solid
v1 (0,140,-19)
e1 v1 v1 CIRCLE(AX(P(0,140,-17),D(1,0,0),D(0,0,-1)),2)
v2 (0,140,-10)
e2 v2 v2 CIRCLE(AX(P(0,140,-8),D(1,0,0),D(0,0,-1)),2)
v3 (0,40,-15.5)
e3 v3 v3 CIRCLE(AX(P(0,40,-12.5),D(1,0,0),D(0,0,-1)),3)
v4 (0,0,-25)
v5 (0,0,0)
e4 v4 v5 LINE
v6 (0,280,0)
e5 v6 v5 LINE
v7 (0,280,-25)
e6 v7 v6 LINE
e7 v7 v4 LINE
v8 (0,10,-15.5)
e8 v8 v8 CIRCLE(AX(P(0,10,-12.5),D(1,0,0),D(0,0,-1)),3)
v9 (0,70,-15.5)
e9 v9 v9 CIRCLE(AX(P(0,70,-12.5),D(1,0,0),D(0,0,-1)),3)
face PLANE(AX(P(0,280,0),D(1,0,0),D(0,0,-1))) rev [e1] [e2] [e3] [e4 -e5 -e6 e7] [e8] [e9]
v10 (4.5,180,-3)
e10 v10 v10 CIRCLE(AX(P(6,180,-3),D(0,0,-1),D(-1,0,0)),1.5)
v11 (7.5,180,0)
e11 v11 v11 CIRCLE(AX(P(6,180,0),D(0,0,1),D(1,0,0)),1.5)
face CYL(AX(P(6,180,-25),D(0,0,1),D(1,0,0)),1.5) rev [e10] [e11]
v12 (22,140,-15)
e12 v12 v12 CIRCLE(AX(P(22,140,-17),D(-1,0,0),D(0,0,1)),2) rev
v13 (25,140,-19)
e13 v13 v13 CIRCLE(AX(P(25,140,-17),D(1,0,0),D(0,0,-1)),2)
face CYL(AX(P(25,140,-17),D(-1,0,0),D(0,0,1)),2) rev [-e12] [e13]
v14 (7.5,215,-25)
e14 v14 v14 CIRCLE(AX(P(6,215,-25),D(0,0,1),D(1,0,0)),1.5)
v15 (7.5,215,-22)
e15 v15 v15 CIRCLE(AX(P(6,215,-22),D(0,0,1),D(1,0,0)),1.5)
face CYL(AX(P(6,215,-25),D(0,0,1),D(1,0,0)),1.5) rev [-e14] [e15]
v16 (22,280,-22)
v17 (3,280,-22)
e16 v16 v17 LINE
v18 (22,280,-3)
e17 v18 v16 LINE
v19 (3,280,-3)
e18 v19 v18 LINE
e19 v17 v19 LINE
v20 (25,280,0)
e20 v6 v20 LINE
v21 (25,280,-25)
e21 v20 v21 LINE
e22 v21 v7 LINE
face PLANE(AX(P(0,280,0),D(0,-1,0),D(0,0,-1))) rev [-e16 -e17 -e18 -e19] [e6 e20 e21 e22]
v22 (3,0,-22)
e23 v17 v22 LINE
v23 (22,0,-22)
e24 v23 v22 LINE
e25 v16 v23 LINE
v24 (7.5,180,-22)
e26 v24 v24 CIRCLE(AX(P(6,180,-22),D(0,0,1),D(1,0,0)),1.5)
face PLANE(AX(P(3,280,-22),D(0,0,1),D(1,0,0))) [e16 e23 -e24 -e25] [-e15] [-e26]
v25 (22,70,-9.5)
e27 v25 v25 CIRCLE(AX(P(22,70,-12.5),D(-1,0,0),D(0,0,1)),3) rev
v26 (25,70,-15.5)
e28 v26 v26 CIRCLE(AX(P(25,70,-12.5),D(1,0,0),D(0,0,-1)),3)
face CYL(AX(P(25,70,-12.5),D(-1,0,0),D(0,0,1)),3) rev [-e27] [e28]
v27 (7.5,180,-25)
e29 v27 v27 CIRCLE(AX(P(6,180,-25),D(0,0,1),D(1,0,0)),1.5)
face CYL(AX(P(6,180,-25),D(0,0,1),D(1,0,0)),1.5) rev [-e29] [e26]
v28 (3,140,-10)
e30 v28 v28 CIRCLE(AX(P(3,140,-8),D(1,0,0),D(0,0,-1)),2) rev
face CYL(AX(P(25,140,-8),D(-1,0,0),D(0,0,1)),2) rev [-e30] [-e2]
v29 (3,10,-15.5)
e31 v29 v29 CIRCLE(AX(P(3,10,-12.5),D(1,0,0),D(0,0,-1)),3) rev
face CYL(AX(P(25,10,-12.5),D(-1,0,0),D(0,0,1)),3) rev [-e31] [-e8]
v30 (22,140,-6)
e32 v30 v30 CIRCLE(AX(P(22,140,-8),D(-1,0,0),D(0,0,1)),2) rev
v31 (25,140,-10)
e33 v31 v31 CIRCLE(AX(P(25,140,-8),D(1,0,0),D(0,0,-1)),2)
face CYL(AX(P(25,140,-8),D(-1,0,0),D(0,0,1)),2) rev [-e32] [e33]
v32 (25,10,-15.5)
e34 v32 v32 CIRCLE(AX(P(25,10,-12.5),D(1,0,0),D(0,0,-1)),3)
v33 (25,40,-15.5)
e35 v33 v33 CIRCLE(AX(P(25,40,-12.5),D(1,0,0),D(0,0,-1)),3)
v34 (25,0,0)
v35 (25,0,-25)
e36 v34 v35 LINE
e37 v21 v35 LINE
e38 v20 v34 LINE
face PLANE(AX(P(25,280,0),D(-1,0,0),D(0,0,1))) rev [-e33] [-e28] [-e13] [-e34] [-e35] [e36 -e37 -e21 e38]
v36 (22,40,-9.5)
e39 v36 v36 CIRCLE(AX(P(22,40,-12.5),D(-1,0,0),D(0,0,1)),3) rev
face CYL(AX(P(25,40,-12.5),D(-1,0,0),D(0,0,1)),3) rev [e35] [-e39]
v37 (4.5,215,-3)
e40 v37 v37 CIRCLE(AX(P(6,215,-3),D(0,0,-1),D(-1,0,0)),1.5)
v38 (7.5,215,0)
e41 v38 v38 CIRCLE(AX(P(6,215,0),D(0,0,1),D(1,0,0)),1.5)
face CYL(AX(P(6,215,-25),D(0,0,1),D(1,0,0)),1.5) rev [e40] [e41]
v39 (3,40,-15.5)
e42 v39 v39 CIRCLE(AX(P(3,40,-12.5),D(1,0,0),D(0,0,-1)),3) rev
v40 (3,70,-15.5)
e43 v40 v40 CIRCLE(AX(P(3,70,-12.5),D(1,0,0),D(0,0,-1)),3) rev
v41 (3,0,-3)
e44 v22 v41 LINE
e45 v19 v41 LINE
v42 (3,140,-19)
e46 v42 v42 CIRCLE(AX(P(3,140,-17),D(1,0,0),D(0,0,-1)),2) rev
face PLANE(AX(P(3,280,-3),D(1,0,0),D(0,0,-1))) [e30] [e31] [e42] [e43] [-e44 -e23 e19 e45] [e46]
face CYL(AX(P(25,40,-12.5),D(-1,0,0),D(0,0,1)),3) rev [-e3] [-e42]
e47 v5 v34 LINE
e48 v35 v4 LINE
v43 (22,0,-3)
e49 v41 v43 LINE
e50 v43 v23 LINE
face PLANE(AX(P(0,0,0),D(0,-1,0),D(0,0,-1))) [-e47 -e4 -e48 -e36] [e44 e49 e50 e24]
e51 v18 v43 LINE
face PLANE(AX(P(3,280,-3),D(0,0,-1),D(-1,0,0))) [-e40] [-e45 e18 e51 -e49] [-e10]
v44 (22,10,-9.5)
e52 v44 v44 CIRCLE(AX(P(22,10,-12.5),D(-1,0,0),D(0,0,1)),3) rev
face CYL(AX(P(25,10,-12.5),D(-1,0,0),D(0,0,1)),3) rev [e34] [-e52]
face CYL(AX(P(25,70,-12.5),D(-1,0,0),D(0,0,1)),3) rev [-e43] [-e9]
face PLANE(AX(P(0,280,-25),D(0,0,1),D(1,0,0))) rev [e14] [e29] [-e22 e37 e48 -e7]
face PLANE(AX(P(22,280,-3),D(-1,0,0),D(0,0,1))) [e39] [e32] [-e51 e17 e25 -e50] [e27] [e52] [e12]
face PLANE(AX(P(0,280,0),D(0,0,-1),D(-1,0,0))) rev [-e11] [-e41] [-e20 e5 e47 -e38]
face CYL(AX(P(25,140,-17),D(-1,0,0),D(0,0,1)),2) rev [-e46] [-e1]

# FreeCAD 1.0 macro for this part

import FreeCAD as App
import Part
import Sketcher
Q = App.Units.Quantity


def add_polygon(sketch, points):
    """Adds a closed chain of lines whose ends are joined by coincident constraints."""
    first, n = sketch.GeometryCount, len(points)
    for a, b in zip(points, points[1:] + points[:1]):
        sketch.addGeometry(Part.LineSegment(App.Vector(*a, 0), App.Vector(*b, 0)), False)
    for i in range(n):
        sketch.addConstraint(Sketcher.Constraint("Coincident", first + i, 2, first + (i + 1) % n, 1))

doc = App.newDocument("Part")
params = doc.addObject("Spreadsheet::Sheet", "Params")
for row, (alias, value) in enumerate([
    ("sketch1_width", "25 mm"),
    ("sketch1_width2", "19 mm"),
    ("pad1_length", "280 mm"),
    ("sketch2_diameter", "6 mm"),
    ("sketch2_diameter2", "4 mm"),
    ("sketch3_diameter", "3 mm"),
], start=1):
    params.set(f"A{row}", alias)
    params.set(f"B{row}", "=" + value)
    params.setAlias(f"B{row}", alias)

body = doc.addObject("PartDesign::Body", "Body")

sketch1 = doc.addObject("Sketcher::SketchObject", "Sketch")
body.addObject(sketch1)
sketch1.AttachmentSupport = (doc.XZ_Plane, [""])
sketch1.MapMode = "FlatFace"
add_polygon(sketch1, [(0, -25), (0, 0), (25, 0), (25, -25)])
add_polygon(sketch1, [(22, -3), (3, -3), (3, -22), (22, -22)])
sketch1.addConstraint(Sketcher.Constraint("Vertical", 0))
sketch1.addConstraint(Sketcher.Constraint("Horizontal", 1))
sketch1.addConstraint(Sketcher.Constraint("Vertical", 2))
sketch1.addConstraint(Sketcher.Constraint("Horizontal", 3))
sketch1.addConstraint(Sketcher.Constraint("Horizontal", 4))
sketch1.addConstraint(Sketcher.Constraint("Vertical", 5))
sketch1.addConstraint(Sketcher.Constraint("Horizontal", 6))
sketch1.addConstraint(Sketcher.Constraint("Vertical", 7))
sketch1.addConstraint(Sketcher.Constraint("Coincident", 0, 2, -1, 1))
sketch1.addConstraint(Sketcher.Constraint("Equal", 3, 0))
sketch1.addConstraint(Sketcher.Constraint("Equal", 6, 5))
sketch1.addConstraint(Sketcher.Constraint("DistanceX", 1, 1, 1, 2, Q("25 mm")))
sketch1.addConstraint(Sketcher.Constraint("DistanceX", 4, 2, 4, 1, Q("19 mm")))
sketch1.addConstraint(Sketcher.Constraint("DistanceX", -1, 1, 4, 2, Q("3 mm")))
sketch1.addConstraint(Sketcher.Constraint("DistanceY", 4, 2, -1, 1, Q("3 mm")))
sketch1.setExpression("Constraints[19]", "Params.sketch1_width")
sketch1.setExpression("Constraints[20]", "Params.sketch1_width2")
pad1 = doc.addObject("PartDesign::Pad", "Pad")
body.addObject(pad1)
pad1.Profile = sketch1
pad1.setExpression("Length", "Params.pad1_length")
pad1.Reversed = True

sketch2 = doc.addObject("Sketcher::SketchObject", "Sketch001")
body.addObject(sketch2)
sketch2.AttachmentSupport = (doc.YZ_Plane, [""])
sketch2.MapMode = "FlatFace"
sketch2.addGeometry(Part.Circle(App.Vector(10, -12.5, 0), App.Vector(0, 0, 1), 3), False)
sketch2.addGeometry(Part.Circle(App.Vector(40, -12.5, 0), App.Vector(0, 0, 1), 3), False)
sketch2.addGeometry(Part.Circle(App.Vector(70, -12.5, 0), App.Vector(0, 0, 1), 3), False)
sketch2.addGeometry(Part.Circle(App.Vector(140, -17, 0), App.Vector(0, 0, 1), 2), False)
sketch2.addGeometry(Part.Circle(App.Vector(140, -8, 0), App.Vector(0, 0, 1), 2), False)
sketch2.addConstraint(Sketcher.Constraint("Equal", 0, 1))
sketch2.addConstraint(Sketcher.Constraint("Equal", 1, 2))
sketch2.addConstraint(Sketcher.Constraint("Equal", 3, 4))
sketch2.addConstraint(Sketcher.Constraint("Horizontal", 0, 3, 1, 3))
sketch2.addConstraint(Sketcher.Constraint("Horizontal", 1, 3, 2, 3))
sketch2.addConstraint(Sketcher.Constraint("Vertical", 3, 3, 4, 3))
sketch2.addConstraint(Sketcher.Constraint("Diameter", 0, Q("6 mm")))
sketch2.addConstraint(Sketcher.Constraint("Diameter", 3, Q("4 mm")))
sketch2.addConstraint(Sketcher.Constraint("DistanceX", -1, 1, 0, 3, Q("10 mm")))
sketch2.addConstraint(Sketcher.Constraint("DistanceX", -1, 1, 1, 3, Q("40 mm")))
sketch2.addConstraint(Sketcher.Constraint("DistanceX", -1, 1, 2, 3, Q("70 mm")))
sketch2.addConstraint(Sketcher.Constraint("DistanceX", -1, 1, 3, 3, Q("140 mm")))
sketch2.addConstraint(Sketcher.Constraint("DistanceY", 3, 3, -1, 1, Q("17 mm")))
sketch2.addConstraint(Sketcher.Constraint("DistanceY", 4, 3, -1, 1, Q("8 mm")))
sketch2.addConstraint(Sketcher.Constraint("DistanceY", 0, 3, -1, 1, Q("12.5 mm")))
sketch2.setExpression("Constraints[6]", "Params.sketch2_diameter")
sketch2.setExpression("Constraints[7]", "Params.sketch2_diameter2")
pocket1 = doc.addObject("PartDesign::Pocket", "Pocket")
body.addObject(pocket1)
pocket1.Profile = sketch2
pocket1.Type = "ThroughAll"
pocket1.Reversed = True

sketch3 = doc.addObject("Sketcher::SketchObject", "Sketch002")
body.addObject(sketch3)
sketch3.AttachmentSupport = (doc.XY_Plane, [""])
sketch3.MapMode = "FlatFace"
sketch3.addGeometry(Part.Circle(App.Vector(6, 180, 0), App.Vector(0, 0, 1), 1.5), False)
sketch3.addGeometry(Part.Circle(App.Vector(6, 215, 0), App.Vector(0, 0, 1), 1.5), False)
sketch3.addConstraint(Sketcher.Constraint("Equal", 0, 1))
sketch3.addConstraint(Sketcher.Constraint("Vertical", 0, 3, 1, 3))
sketch3.addConstraint(Sketcher.Constraint("Diameter", 0, Q("3 mm")))
sketch3.addConstraint(Sketcher.Constraint("DistanceX", -1, 1, 0, 3, Q("6 mm")))
sketch3.addConstraint(Sketcher.Constraint("DistanceY", -1, 1, 0, 3, Q("180 mm")))
sketch3.addConstraint(Sketcher.Constraint("DistanceY", -1, 1, 1, 3, Q("215 mm")))
sketch3.setExpression("Constraints[2]", "Params.sketch3_diameter")
pocket2 = doc.addObject("PartDesign::Pocket", "Pocket001")
body.addObject(pocket2)
pocket2.Profile = sketch3
pocket2.Type = "ThroughAll"
pocket2.Midplane = True

doc.recompute()
